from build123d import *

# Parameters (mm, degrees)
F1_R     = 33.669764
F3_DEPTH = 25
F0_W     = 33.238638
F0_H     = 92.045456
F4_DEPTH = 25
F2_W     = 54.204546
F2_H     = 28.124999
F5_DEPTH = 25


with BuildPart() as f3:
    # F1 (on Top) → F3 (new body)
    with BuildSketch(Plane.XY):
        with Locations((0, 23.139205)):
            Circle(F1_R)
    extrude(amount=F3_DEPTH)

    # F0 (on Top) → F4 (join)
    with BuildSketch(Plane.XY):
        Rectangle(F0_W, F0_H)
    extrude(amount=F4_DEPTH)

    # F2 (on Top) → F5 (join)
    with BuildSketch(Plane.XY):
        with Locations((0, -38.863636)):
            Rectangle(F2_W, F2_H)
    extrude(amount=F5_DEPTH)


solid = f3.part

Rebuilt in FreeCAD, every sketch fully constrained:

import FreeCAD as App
import Part
import Sketcher
Q = App.Units.Quantity


def add_polygon(sketch, points):
    """Adds a closed chain of lines whose ends are joined by coincident constraints."""
    first, n = sketch.GeometryCount, len(points)
    for a, b in zip(points, points[1:] + points[:1]):
        sketch.addGeometry(Part.LineSegment(App.Vector(*a, 0), App.Vector(*b, 0)), False)
    for i in range(n):
        sketch.addConstraint(Sketcher.Constraint("Coincident", first + i, 2, first + (i + 1) % n, 1))

doc = App.newDocument("Part")
body = doc.addObject("PartDesign::Body", "Body")

sketch1 = body.newObject("Sketcher::SketchObject", "Sketch")
sketch1.AttachmentSupport = (doc.getObject("XY_Plane"), [""])
sketch1.MapMode = "FlatFace"
sketch1.addGeometry(Part.Circle(App.Vector(0, 23.139205, 0), App.Vector(0, 0, 1), 33.669764), False)
sketch1.addConstraint([
    Sketcher.Constraint("PointOnObject", 0, 3, -2),
    Sketcher.Constraint("Diameter", 0, Q("67.339528 mm")),
    Sketcher.Constraint("DistanceY", -1, 1, 0, 3, Q("23.139205 mm")),
])
pad1 = body.newObject("PartDesign::Pad", "Pad")
pad1.Profile = sketch1
pad1.Length = 25

sketch2 = body.newObject("Sketcher::SketchObject", "Sketch001")
sketch2.AttachmentSupport = (doc.getObject("XY_Plane"), [""])
sketch2.MapMode = "FlatFace"
add_polygon(sketch2, [(-16.619319, 46.022728), (-16.619319, -46.022728), (16.619319, -46.022728), (16.619319, 46.022728)])
sketch2.addConstraint([
    Sketcher.Constraint("Vertical", 0),
    Sketcher.Constraint("Horizontal", 1),
    Sketcher.Constraint("Vertical", 2),
    Sketcher.Constraint("Horizontal", 3),
    Sketcher.Constraint("Symmetric", 0, 2, 2, 2, -1, 1),
    Sketcher.Constraint("DistanceX", 1, 1, 1, 2, Q("33.238638 mm")),
    Sketcher.Constraint("DistanceY", 0, 2, 0, 1, Q("92.045456 mm")),
])
pad2 = body.newObject("PartDesign::Pad", "Pad001")
pad2.Profile = sketch2
pad2.Length = 25

sketch3 = body.newObject("Sketcher::SketchObject", "Sketch002")
sketch3.AttachmentSupport = (doc.getObject("XY_Plane"), [""])
sketch3.MapMode = "FlatFace"
add_polygon(sketch3, [(-27.102273, -24.801136), (-27.102273, -52.926136), (27.102273, -52.926136), (27.102273, -24.801136)])
sketch3.addConstraint([
    Sketcher.Constraint("Vertical", 0),
    Sketcher.Constraint("Horizontal", 1),
    Sketcher.Constraint("Vertical", 2),
    Sketcher.Constraint("Horizontal", 3),
    Sketcher.Constraint("DistanceY", 0, 2, 0, 1, Q("28.124999 mm")),
    Sketcher.Constraint("DistanceX", 1, 1, 1, 2, Q("54.204546 mm")),
    Sketcher.Constraint("DistanceX", 0, 2, -1, 1, Q("27.102273 mm")),
    Sketcher.Constraint("DistanceY", 0, 2, -1, 1, Q("52.926136 mm")),
])
pad3 = body.newObject("PartDesign::Pad", "Pad002")
pad3.Profile = sketch3
pad3.Length = 25

doc.recompute()
